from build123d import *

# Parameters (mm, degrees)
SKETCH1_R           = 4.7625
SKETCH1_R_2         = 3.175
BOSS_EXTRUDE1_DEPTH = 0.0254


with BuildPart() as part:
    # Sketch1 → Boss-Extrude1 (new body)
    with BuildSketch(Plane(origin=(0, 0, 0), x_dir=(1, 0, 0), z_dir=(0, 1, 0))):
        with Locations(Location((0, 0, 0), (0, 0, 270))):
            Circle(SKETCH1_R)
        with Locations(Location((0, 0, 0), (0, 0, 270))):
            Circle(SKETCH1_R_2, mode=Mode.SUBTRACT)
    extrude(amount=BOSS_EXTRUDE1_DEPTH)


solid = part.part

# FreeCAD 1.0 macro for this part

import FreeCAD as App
import Part
import Sketcher
Q = App.Units.Quantity

doc = App.newDocument("Part")
params = doc.addObject("Spreadsheet::Sheet", "Params")
for row, (alias, value) in enumerate([
    ("sketch1_diameter", "0.25 in"),
    ("sketch1_diameter2", "0.375 in"),
    ("pad1_length", "0.001 in"),
], start=1):
    params.set(f"A{row}", alias)
    params.set(f"B{row}", "=" + value)
    params.setAlias(f"B{row}", alias)

body = doc.addObject("PartDesign::Body", "Body")

sketch1 = body.newObject("Sketcher::SketchObject", "Sketch")
sketch1.AttachmentSupport = (doc.getObject("XZ_Plane"), [""])
sketch1.MapMode = "FlatFace"
sketch1.addGeometry(Part.Circle(App.Vector(0, 0, 0), App.Vector(0, 0, 1), 4.8), False)
sketch1.addGeometry(Part.Circle(App.Vector(0, 0, 0), App.Vector(0, 0, 1), 3.2), False)
sketch1.addConstraint(Sketcher.Constraint("Coincident", 0, 3, -1, 1))
sketch1.addConstraint(Sketcher.Constraint("Coincident", 1, 3, -1, 1))
sketch1.addConstraint(Sketcher.Constraint("Diameter", 1, Q("0.25 in")))
sketch1.addConstraint(Sketcher.Constraint("Diameter", 0, Q("0.375 in")))
sketch1.setExpression("Constraints[2]", "Params.sketch1_diameter")
sketch1.setExpression("Constraints[3]", "Params.sketch1_diameter2")
pad1 = body.newObject("PartDesign::Pad", "Pad")
pad1.Profile = sketch1
pad1.setExpression("Length", "Params.pad1_length")
pad1.Reversed = True

doc.recompute()
